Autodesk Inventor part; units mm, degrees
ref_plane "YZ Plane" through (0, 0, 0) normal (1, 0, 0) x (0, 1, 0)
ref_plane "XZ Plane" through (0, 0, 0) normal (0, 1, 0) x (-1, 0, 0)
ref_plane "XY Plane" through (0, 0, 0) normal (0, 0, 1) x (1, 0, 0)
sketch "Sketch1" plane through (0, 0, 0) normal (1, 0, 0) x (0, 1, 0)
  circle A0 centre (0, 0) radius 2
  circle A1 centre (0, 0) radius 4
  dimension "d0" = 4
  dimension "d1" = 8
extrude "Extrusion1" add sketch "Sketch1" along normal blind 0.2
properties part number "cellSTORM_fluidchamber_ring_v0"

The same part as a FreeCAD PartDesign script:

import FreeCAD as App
import Part
import Sketcher

V = App.Vector
Q = App.Units.Quantity

doc = App.newDocument("Part")
body = doc.addObject("PartDesign::Body", "Body")

# Sketch on YZ plane
sketch1 = body.newObject("Sketcher::SketchObject", "Sketch")
sketch1.AttachmentSupport = (doc.getObject("YZ_Plane"), [""])
sketch1.MapMode = "FlatFace"
sketch1.addGeometry([
    Part.Circle(V(0, 0, 0), V(0, 0, 1), 4),
    Part.Circle(V(0, 0, 0), V(0, 0, 1), 2),
], False)
sketch1.addConstraint([
    Sketcher.Constraint("Coincident", 0, 3, -1, 1),
    Sketcher.Constraint("Coincident", 1, 3, -1, 1),
    Sketcher.Constraint("Diameter", 0, Q("8 mm")),
    Sketcher.Constraint("Diameter", 1, Q("4 mm")),
])
pad1 = body.newObject("PartDesign::Pad", "Pad")
pad1.Profile = sketch1
pad1.Length = 0.2

doc.recompute()
